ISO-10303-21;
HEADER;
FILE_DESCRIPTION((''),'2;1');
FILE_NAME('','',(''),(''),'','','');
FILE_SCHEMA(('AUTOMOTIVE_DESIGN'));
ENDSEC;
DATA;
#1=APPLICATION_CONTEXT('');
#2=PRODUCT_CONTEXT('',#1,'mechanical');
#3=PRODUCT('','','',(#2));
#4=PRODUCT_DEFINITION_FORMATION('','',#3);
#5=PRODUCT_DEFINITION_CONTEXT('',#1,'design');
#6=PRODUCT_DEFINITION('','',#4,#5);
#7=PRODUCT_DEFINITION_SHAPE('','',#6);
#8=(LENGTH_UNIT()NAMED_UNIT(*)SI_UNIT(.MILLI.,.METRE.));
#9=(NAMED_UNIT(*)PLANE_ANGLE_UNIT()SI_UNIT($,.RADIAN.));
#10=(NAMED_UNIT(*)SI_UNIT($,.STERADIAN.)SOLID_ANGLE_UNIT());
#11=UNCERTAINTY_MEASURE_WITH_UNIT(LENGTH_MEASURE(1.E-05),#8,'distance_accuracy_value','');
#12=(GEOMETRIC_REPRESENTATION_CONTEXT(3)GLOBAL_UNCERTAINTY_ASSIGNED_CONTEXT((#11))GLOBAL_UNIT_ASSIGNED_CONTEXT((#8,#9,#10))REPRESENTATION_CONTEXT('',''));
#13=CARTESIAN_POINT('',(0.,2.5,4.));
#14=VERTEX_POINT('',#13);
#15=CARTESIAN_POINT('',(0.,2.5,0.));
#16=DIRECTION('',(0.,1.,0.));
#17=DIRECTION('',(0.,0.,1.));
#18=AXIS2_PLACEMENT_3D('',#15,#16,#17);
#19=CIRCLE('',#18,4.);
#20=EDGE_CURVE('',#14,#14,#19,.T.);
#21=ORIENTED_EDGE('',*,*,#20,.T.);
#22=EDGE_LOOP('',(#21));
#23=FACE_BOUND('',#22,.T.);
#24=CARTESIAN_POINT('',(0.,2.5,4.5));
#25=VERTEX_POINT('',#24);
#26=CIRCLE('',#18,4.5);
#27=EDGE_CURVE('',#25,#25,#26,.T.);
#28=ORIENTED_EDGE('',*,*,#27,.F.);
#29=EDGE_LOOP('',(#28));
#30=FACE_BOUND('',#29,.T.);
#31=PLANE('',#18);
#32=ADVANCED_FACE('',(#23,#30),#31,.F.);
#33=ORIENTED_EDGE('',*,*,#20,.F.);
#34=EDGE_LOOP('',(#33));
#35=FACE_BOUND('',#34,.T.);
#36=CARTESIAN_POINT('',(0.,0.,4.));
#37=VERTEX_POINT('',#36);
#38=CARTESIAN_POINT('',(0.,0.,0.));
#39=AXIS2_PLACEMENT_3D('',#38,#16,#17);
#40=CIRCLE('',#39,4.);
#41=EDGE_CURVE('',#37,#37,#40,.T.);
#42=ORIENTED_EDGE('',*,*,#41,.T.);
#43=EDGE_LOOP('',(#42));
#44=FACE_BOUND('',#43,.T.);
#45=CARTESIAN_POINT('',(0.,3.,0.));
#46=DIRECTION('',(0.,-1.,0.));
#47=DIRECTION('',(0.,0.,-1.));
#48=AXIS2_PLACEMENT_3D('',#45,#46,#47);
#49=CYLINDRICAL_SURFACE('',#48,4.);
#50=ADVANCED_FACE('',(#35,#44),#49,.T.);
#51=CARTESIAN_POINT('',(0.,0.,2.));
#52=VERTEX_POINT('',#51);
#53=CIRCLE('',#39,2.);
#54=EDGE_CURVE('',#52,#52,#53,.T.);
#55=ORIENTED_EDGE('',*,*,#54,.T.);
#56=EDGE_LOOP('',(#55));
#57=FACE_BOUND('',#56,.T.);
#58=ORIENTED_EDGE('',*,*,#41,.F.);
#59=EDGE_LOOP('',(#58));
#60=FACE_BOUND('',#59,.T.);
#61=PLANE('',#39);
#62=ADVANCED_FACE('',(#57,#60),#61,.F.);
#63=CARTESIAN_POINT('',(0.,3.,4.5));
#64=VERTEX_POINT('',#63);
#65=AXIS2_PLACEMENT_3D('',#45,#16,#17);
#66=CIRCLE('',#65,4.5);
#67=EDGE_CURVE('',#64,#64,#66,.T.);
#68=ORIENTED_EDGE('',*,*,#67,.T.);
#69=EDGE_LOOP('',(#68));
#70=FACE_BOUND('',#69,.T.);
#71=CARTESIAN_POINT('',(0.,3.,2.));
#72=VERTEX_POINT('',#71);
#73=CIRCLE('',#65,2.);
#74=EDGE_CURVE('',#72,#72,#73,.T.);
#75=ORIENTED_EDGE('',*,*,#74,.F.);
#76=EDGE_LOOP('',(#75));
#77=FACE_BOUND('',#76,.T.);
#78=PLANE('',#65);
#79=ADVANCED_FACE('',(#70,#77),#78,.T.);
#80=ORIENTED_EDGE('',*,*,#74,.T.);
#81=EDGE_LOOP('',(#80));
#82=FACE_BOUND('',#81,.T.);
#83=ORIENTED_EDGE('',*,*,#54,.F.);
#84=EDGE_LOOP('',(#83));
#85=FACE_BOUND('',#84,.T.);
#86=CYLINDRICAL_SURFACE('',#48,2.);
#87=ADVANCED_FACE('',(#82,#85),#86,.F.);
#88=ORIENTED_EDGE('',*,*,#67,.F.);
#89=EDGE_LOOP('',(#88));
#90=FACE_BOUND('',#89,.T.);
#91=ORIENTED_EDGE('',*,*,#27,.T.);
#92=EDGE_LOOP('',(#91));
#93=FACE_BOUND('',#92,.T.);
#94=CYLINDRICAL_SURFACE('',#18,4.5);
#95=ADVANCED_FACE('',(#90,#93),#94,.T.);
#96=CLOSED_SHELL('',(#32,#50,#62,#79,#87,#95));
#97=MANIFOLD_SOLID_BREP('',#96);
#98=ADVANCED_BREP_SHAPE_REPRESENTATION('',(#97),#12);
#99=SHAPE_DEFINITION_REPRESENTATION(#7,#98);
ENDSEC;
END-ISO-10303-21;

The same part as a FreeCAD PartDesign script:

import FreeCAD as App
import Part
import Sketcher
from FreeCAD import Vector
Q = App.Units.Quantity

doc = App.newDocument("Part")
body = doc.addObject("PartDesign::Body", "Body")

# Sketch on XZ plane
sketch1 = doc.addObject("Sketcher::SketchObject", "Sketch")
body.addObject(sketch1)
sketch1.AttachmentSupport = (doc.XZ_Plane, [""])
sketch1.MapMode = "FlatFace"
sketch1.addGeometry(Part.Circle(Vector(0, 0, 0), Vector(0, 0, 1), 4), False)
sketch1.addGeometry(Part.Circle(Vector(0, 0, 0), Vector(0, 0, 1), 2), False)
sketch1.addConstraint(Sketcher.Constraint("Coincident", 0, 3, -1, 1))
sketch1.addConstraint(Sketcher.Constraint("Coincident", 1, 3, -1, 1))
sketch1.addConstraint(Sketcher.Constraint("Diameter", 0, Q("8 mm")))
sketch1.addConstraint(Sketcher.Constraint("Diameter", 1, Q("4 mm")))
pad1 = doc.addObject("PartDesign::Pad", "Pad")
body.addObject(pad1)
pad1.Profile = sketch1
pad1.Length = 3
pad1.Reversed = True

# Sketch on XZ plane
sketch2 = doc.addObject("Sketcher::SketchObject", "Sketch001")
body.addObject(sketch2)
sketch2.AttachmentSupport = (doc.XZ_Plane, [""])
sketch2.MapMode = "FlatFace"
sketch2.AttachmentOffset = App.Placement(Vector(0, 0, -2.5), App.Rotation())
sketch2.addGeometry(Part.Circle(Vector(0, 0, 0), Vector(0, 0, 1), 4.5), False)
sketch2.addGeometry(Part.Circle(Vector(0, 0, 0), Vector(0, 0, 1), 2), False)
sketch2.addConstraint(Sketcher.Constraint("Coincident", 0, 3, -1, 1))
sketch2.addConstraint(Sketcher.Constraint("Coincident", 1, 3, -1, 1))
sketch2.addConstraint(Sketcher.Constraint("Diameter", 0, Q("9 mm")))
sketch2.addConstraint(Sketcher.Constraint("Diameter", 1, Q("4 mm")))
pad2 = doc.addObject("PartDesign::Pad", "Pad001")
body.addObject(pad2)
pad2.Profile = sketch2
pad2.Length = 0.5
pad2.Reversed = True

doc.recompute()
